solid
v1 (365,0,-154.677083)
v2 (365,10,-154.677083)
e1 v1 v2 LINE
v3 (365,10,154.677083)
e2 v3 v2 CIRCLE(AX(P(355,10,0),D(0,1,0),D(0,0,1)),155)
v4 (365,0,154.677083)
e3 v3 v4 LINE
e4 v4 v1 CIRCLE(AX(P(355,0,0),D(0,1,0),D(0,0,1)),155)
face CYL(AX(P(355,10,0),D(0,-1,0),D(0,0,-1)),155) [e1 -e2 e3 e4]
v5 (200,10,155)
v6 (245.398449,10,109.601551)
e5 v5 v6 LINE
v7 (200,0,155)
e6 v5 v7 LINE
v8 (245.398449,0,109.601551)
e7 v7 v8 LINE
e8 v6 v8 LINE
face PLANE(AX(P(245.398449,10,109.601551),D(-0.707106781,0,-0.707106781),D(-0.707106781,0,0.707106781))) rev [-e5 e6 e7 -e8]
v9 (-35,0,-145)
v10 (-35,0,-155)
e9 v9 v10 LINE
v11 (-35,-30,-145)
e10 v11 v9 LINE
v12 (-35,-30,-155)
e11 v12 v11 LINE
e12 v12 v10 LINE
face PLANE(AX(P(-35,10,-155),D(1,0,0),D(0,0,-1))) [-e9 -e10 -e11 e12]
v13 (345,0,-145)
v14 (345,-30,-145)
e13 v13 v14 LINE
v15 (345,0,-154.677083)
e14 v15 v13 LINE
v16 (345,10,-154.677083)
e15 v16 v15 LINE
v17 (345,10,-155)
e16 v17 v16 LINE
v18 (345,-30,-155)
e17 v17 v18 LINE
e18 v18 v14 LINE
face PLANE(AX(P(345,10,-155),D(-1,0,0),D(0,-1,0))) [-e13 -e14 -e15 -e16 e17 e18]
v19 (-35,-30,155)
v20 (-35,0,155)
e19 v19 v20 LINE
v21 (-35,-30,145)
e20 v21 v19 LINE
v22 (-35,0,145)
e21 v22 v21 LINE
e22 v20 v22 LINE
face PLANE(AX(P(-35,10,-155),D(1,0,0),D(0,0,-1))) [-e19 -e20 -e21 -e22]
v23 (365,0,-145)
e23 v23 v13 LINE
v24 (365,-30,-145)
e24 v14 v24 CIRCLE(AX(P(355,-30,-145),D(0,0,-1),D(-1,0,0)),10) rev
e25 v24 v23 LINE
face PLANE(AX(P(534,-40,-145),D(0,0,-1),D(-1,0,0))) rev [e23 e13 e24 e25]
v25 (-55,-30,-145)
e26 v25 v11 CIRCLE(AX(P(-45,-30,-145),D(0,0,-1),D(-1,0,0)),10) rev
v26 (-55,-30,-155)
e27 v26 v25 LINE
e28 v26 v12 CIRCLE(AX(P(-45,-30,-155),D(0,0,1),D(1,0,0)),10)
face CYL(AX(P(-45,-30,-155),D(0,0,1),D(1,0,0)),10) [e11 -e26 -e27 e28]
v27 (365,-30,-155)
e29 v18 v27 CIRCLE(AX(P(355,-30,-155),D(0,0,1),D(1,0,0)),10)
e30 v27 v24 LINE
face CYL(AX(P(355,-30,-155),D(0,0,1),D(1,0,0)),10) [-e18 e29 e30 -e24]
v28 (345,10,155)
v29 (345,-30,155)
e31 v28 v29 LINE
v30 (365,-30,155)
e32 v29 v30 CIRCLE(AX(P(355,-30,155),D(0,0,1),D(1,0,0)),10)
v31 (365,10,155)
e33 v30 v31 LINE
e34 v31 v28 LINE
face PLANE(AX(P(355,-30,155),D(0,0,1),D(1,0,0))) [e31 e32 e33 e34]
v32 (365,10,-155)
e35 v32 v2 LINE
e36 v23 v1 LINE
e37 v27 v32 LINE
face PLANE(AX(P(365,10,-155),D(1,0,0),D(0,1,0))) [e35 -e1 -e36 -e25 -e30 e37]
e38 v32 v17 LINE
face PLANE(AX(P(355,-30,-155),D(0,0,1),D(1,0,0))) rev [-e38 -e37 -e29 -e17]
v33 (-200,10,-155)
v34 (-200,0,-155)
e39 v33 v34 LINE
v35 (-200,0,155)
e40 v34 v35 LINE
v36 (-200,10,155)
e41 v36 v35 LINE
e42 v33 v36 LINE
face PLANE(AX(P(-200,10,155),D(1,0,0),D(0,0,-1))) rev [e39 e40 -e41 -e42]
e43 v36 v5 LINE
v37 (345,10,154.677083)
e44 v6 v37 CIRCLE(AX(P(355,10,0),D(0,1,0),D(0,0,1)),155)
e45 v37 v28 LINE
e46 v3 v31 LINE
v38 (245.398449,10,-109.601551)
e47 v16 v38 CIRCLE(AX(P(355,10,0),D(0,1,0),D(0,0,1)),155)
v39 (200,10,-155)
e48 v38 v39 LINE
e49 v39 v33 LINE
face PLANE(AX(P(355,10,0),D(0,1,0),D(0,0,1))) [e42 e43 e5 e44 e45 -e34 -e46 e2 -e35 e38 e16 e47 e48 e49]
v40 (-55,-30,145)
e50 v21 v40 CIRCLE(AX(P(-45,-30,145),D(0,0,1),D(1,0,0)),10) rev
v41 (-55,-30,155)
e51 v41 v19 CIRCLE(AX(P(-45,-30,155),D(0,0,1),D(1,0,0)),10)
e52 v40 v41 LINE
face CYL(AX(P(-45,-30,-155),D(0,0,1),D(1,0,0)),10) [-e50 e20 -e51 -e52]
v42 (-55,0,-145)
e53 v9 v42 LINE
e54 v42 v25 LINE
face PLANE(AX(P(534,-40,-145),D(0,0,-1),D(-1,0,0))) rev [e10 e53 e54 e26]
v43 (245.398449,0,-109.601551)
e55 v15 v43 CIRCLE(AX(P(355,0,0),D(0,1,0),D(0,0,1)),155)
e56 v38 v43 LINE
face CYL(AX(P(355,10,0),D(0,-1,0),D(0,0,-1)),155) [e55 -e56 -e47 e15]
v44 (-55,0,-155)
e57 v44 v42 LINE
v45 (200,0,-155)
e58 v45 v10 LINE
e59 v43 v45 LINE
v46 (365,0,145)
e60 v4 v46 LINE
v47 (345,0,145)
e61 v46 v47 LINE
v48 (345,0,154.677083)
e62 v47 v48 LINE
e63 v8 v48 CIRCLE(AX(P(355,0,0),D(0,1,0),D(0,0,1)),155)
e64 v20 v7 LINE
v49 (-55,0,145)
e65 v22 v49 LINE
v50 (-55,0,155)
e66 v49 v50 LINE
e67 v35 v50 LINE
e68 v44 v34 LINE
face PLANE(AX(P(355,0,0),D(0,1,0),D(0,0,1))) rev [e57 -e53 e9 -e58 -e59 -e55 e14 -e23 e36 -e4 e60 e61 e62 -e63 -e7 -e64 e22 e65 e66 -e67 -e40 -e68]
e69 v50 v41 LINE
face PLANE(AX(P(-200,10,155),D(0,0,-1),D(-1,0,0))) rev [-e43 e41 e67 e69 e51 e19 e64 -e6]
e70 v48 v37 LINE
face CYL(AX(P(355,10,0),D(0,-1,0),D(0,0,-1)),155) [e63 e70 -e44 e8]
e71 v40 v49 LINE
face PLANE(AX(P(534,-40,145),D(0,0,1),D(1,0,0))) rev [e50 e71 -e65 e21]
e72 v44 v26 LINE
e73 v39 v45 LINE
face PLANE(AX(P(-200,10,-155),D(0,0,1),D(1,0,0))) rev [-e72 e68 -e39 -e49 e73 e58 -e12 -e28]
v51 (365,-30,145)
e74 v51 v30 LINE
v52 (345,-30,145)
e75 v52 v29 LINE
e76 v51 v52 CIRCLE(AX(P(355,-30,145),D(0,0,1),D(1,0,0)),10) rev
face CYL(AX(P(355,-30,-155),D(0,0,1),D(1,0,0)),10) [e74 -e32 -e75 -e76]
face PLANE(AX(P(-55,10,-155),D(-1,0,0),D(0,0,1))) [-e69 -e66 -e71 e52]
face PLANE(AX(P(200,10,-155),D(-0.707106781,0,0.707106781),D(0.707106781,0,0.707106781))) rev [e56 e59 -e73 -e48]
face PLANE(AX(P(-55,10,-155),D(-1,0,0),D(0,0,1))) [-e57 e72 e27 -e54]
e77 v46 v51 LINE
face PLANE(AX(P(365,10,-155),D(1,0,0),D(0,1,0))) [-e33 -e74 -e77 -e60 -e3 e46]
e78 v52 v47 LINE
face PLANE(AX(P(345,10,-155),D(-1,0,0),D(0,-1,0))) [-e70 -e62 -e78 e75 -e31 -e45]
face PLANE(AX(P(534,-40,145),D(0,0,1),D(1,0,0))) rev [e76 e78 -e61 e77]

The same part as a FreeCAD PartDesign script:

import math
import FreeCAD as App
import Part
import Sketcher

V = App.Vector


def add_polygon(sketch, points):
    """Adds a closed chain of lines whose ends are joined by coincident constraints."""
    first, n = sketch.GeometryCount, len(points)
    for a, b in zip(points, points[1:] + points[:1]):
        sketch.addGeometry(Part.LineSegment(App.Vector(*a, 0), App.Vector(*b, 0)), False)
    for i in range(n):
        sketch.addConstraint(Sketcher.Constraint("Coincident", first + i, 2, first + (i + 1) % n, 1))

doc = App.newDocument("Part")
body = doc.addObject("PartDesign::Body", "Body")

sketch1 = body.newObject("Sketcher::SketchObject", "Sketch")
sketch1.AttachmentSupport = (doc.getObject("XZ_Plane"), [""])
sketch1.MapMode = "FlatFace"
sketch1.addGeometry([
    Part.LineSegment(V(245.398449, -109.601551, 0), V(200, -155, 0)),
    Part.LineSegment(V(200, -155, 0), V(-200, -155, 0)),
    Part.LineSegment(V(-200, -155, 0), V(-200, 155, 0)),
    Part.LineSegment(V(-200, 155, 0), V(200, 155, 0)),
    Part.LineSegment(V(200, 155, 0), V(245.398449, 109.601551, 0)),
    Part.ArcOfCircle(Part.Circle(V(355, 0, 0), V(0, 0, 1), 155), math.radians(-135), math.radians(135)),
], False)
sketch1.addConstraint([
    Sketcher.Constraint("Coincident", 0, 2, 1, 1),
    Sketcher.Constraint("Coincident", 1, 2, 2, 1),
    Sketcher.Constraint("Coincident", 2, 2, 3, 1),
    Sketcher.Constraint("Coincident", 3, 2, 4, 1),
    Sketcher.Constraint("Coincident", 4, 2, 5, 2),
    Sketcher.Constraint("Coincident", 5, 1, 0, 1),
    Sketcher.Constraint("Horizontal", 1),
    Sketcher.Constraint("Vertical", 2),
    Sketcher.Constraint("Horizontal", 3),
    Sketcher.Constraint("Symmetric", 0, 2, 2, 2, -1, 1),
    Sketcher.Constraint("Symmetric", 4, 2, 5, 1, -1),
    Sketcher.Constraint("Perpendicular", 0, 4),
    Sketcher.Constraint("Vertical", 0, 2, 3, 2),
    Sketcher.Constraint("Radius", 5, 155.0),
    Sketcher.Constraint("DistanceX", 1, 2, 1, 1, 400.0),
    Sketcher.Constraint("DistanceY", 2, 1, 2, 2, 310.0),
    Sketcher.Constraint("DistanceX", -1, 1, 5, 3, 355.0),
])
pad1 = body.newObject("PartDesign::Pad", "Pad")
pad1.Profile = sketch1
pad1.Length = 10
pad1.Reversed = True

sketch2 = body.newObject("Sketcher::SketchObject", "Sketch001")
sketch2.AttachmentSupport = (doc.getObject("XY_Plane"), [""])
sketch2.MapMode = "FlatFace"
sketch2.AttachmentOffset = App.Placement(V(0, 0, 155), App.Rotation())
sketch2.addGeometry([
    Part.LineSegment(V(-35, 10, 0), V(-55, 10, 0)),
    Part.LineSegment(V(-55, 10, 0), V(-55, -30, 0)),
    Part.ArcOfCircle(Part.Circle(V(-45, -30, 0), V(0, 0, 1), 10), math.radians(180), math.radians(360)),
    Part.LineSegment(V(-35, -30, 0), V(-35, 10, 0)),
    Part.LineSegment(V(365, 10, 0), V(345, 10, 0)),
    Part.LineSegment(V(345, 10, 0), V(345, -30, 0)),
    Part.ArcOfCircle(Part.Circle(V(355, -30, 0), V(0, 0, 1), 10), math.radians(180), math.radians(360)),
    Part.LineSegment(V(365, -30, 0), V(365, 10, 0)),
], False)
sketch2.addConstraint([
    Sketcher.Constraint("Coincident", 0, 2, 1, 1),
    Sketcher.Constraint("Tangent", 1, 2, 2, 1),
    Sketcher.Constraint("Tangent", 2, 2, 3, 1),
    Sketcher.Constraint("Coincident", 3, 2, 0, 1),
    Sketcher.Constraint("Coincident", 4, 2, 5, 1),
    Sketcher.Constraint("Tangent", 5, 2, 6, 1),
    Sketcher.Constraint("Tangent", 6, 2, 7, 1),
    Sketcher.Constraint("Coincident", 7, 2, 4, 1),
    Sketcher.Constraint("Horizontal", 0),
    Sketcher.Constraint("Vertical", 1),
    Sketcher.Constraint("Vertical", 3),
    Sketcher.Constraint("Horizontal", 4),
    Sketcher.Constraint("Vertical", 5),
    Sketcher.Constraint("Vertical", 7),
    Sketcher.Constraint("Equal", 2, 6),
    Sketcher.Constraint("Horizontal", 2, 3, 6, 3),
    Sketcher.Constraint("Horizontal", 3, 2, 4, 2),
    Sketcher.Constraint("Radius", 2, 10.0),
    Sketcher.Constraint("DistanceY", 1, 2, 1, 1, 40.0),
    Sketcher.Constraint("DistanceX", 2, 3, -1, 1, 45.0),
    Sketcher.Constraint("DistanceY", 2, 3, -1, 1, 30.0),
    Sketcher.Constraint("DistanceX", -1, 1, 6, 3, 355.0),
])
pad2 = body.newObject("PartDesign::Pad", "Pad001")
pad2.Profile = sketch2
pad2.Length = 310
pad2.Reversed = True

sketch3 = body.newObject("Sketcher::SketchObject", "Sketch002")
sketch3.AttachmentSupport = (doc.getObject("YZ_Plane"), [""])
sketch3.MapMode = "FlatFace"
sketch3.AttachmentOffset = App.Placement(V(0, 0, -55), App.Rotation())
add_polygon(sketch3, [(0, -145), (-40, -145), (-40, 145), (0, 145)])
sketch3.addConstraint([
    Sketcher.Constraint("Horizontal", 0),
    Sketcher.Constraint("Vertical", 1),
    Sketcher.Constraint("Horizontal", 2),
    Sketcher.Constraint("Vertical", 3),
    Sketcher.Constraint("Symmetric", 2, 2, 3, 2, -1, 1),
    Sketcher.Constraint("DistanceX", 0, 2, 0, 1, 40.0),
    Sketcher.Constraint("DistanceY", 1, 1, 1, 2, 290.0),
])
pocket1 = body.newObject("PartDesign::Pocket", "Pocket")
pocket1.Profile = sketch3
pocket1.Length = 589
pocket1.Reversed = True

doc.recompute()
